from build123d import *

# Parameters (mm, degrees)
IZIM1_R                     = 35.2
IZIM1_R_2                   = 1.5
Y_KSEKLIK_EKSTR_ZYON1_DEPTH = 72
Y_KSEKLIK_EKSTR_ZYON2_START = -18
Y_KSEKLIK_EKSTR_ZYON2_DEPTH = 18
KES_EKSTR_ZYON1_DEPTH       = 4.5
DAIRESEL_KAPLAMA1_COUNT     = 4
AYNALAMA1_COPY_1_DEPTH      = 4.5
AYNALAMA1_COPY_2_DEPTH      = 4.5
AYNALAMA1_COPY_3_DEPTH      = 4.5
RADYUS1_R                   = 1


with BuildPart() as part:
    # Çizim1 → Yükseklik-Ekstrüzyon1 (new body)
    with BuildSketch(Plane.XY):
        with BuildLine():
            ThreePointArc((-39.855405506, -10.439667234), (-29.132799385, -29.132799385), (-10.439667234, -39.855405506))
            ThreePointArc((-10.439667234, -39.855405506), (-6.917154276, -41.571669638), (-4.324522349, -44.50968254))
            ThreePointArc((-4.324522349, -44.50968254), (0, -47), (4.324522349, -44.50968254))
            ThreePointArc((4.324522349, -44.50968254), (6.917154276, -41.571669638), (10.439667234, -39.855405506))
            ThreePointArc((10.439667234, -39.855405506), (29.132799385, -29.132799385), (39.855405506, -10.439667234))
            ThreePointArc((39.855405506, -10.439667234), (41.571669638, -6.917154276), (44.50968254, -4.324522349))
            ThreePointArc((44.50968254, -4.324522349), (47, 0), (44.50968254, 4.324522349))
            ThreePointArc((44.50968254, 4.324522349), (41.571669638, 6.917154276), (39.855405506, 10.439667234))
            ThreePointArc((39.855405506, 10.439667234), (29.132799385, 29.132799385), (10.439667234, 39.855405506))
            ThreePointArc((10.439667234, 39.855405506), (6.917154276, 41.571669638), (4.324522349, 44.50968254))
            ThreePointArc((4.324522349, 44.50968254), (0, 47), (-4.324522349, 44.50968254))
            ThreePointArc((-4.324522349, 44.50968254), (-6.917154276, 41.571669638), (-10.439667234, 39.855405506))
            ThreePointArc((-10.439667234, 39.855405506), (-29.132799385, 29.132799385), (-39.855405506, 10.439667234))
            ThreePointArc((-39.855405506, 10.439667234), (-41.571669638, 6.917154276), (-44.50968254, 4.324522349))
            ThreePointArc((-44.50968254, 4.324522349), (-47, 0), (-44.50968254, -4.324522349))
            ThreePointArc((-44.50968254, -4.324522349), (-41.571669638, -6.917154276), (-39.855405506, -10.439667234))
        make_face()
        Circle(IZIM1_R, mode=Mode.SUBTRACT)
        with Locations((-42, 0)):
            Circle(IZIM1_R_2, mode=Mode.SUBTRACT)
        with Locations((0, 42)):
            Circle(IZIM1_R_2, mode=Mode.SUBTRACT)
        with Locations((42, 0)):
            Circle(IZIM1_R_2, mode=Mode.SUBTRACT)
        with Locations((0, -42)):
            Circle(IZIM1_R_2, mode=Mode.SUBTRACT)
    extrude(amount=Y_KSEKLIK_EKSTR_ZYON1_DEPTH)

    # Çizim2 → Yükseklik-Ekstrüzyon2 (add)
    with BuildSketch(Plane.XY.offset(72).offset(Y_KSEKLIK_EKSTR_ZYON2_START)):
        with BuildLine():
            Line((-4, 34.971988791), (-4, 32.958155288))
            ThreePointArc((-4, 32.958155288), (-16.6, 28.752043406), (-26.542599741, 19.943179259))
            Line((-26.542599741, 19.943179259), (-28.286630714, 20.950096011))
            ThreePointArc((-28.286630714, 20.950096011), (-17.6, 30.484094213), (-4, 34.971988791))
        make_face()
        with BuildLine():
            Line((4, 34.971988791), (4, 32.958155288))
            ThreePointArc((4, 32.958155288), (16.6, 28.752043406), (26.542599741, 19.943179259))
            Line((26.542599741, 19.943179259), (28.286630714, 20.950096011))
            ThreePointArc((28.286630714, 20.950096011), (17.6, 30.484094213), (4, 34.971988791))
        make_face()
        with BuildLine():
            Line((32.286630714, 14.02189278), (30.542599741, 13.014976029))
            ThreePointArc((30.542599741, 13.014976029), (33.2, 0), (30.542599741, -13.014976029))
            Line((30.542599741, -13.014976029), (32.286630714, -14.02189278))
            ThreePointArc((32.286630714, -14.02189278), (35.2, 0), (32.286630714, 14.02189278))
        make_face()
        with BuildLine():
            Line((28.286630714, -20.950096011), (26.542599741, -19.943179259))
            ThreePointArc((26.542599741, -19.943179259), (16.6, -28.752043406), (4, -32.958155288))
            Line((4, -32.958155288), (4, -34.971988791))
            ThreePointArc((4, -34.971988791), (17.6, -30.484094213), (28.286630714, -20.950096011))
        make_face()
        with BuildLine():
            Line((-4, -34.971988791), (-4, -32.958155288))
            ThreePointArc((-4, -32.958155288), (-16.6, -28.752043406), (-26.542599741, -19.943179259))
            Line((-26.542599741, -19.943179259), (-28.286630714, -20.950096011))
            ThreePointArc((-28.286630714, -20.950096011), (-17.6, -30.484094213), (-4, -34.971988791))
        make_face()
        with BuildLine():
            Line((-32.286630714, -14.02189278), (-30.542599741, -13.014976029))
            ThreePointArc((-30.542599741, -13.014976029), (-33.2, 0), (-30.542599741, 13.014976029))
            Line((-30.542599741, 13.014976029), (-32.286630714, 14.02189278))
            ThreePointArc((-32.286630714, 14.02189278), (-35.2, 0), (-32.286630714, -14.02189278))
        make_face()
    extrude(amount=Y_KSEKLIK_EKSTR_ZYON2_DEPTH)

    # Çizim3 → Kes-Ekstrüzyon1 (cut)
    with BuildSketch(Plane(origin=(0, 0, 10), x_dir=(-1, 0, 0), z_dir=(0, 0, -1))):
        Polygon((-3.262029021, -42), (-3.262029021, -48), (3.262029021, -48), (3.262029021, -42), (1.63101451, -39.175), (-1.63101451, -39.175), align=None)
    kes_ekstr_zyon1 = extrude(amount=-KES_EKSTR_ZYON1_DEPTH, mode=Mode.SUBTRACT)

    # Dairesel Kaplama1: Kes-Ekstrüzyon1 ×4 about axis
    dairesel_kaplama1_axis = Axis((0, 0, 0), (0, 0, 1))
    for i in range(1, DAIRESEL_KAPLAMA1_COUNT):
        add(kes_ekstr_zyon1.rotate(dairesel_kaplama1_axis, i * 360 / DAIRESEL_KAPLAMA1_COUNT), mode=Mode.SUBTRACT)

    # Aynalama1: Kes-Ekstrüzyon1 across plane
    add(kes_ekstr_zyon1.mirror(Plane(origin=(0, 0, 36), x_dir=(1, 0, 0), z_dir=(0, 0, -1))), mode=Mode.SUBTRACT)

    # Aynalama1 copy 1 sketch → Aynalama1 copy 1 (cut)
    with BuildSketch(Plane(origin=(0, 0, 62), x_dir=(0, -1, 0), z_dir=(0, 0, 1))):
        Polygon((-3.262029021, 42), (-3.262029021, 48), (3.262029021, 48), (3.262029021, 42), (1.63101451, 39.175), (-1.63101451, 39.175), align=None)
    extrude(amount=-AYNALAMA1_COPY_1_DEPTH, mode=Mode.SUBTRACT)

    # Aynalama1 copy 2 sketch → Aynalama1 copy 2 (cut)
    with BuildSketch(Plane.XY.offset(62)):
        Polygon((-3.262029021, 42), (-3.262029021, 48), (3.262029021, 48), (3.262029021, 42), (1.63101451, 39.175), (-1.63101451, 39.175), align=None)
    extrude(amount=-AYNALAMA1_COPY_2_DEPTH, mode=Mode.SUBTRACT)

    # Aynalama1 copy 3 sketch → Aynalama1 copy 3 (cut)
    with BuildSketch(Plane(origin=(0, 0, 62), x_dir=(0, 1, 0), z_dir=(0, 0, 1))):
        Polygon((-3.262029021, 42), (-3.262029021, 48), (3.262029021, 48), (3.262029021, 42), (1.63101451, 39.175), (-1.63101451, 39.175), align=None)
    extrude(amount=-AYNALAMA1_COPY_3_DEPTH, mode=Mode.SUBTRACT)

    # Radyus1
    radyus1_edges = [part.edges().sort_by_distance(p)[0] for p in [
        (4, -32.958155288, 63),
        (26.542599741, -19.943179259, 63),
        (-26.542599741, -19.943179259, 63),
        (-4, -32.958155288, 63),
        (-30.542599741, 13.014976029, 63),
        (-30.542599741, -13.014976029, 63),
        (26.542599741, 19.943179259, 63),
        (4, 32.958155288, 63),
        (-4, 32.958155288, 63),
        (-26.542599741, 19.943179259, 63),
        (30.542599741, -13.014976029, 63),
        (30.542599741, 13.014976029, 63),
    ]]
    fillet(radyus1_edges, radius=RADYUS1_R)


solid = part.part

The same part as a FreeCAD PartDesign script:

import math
import FreeCAD as App
import Part
import Sketcher
from FreeCAD import Vector
Q = App.Units.Quantity


def edges_at(feature, points):
    """Names of the edges that pass closest to the given points."""
    edges = feature.Shape.Edges
    near = lambda p: min(range(len(edges)), key=lambda i: edges[i].distToShape(Part.Vertex(*p))[0])
    return sorted({f"Edge{near(p) + 1}" for p in points})

doc = App.newDocument("Part")
body = doc.addObject("PartDesign::Body", "Body")

# Sketch on XY plane
sketch1 = doc.addObject("Sketcher::SketchObject", "Sketch")
body.addObject(sketch1)
sketch1.AttachmentSupport = (doc.XY_Plane, [""])
sketch1.MapMode = "FlatFace"
sketch1.addGeometry([
    Part.ArcOfCircle(Part.Circle(Vector(0, 0, 0), Vector(0, 0, 1), 41.2), math.radians(-165), math.radians(-105)),  # 0
    Part.ArcOfCircle(Part.Circle(Vector(-13, -49.5, 0), Vector(0, 0, 1), 10), math.radians(30), math.radians(75)),  # 1
    Part.ArcOfCircle(Part.Circle(Vector(0, -42, 0), Vector(0, 0, 1), 5), math.radians(-150), math.radians(-30)),  # 2
    Part.ArcOfCircle(Part.Circle(Vector(13, -49.5, 0), Vector(0, 0, 1), 10), math.radians(105), math.radians(150)),  # 3
    Part.ArcOfCircle(Part.Circle(Vector(0, 0, 0), Vector(0, 0, 1), 41.2), math.radians(-75), math.radians(-15)),  # 4
    Part.ArcOfCircle(Part.Circle(Vector(49.5, -13, 0), Vector(0, 0, 1), 10), math.radians(120), math.radians(165)),  # 5
    Part.ArcOfCircle(Part.Circle(Vector(42, 0, 0), Vector(0, 0, 1), 5), math.radians(-60), math.radians(60)),  # 6
    Part.ArcOfCircle(Part.Circle(Vector(49.5, 13, 0), Vector(0, 0, 1), 10), math.radians(-165), math.radians(-120)),  # 7
    Part.ArcOfCircle(Part.Circle(Vector(0, 0, 0), Vector(0, 0, 1), 41.2), math.radians(15), math.radians(75)),  # 8
    Part.ArcOfCircle(Part.Circle(Vector(13, 49.5, 0), Vector(0, 0, 1), 10), math.radians(-150), math.radians(-105)),  # 9
    Part.ArcOfCircle(Part.Circle(Vector(0, 42, 0), Vector(0, 0, 1), 5), math.radians(30), math.radians(150)),  # 10
    Part.ArcOfCircle(Part.Circle(Vector(-13, 49.5, 0), Vector(0, 0, 1), 10), math.radians(-75), math.radians(-30)),  # 11
    Part.ArcOfCircle(Part.Circle(Vector(0, 0, 0), Vector(0, 0, 1), 41.2), math.radians(105), math.radians(165)),  # 12
    Part.ArcOfCircle(Part.Circle(Vector(-49.5, 13, 0), Vector(0, 0, 1), 10), math.radians(-60), math.radians(-15)),  # 13
    Part.ArcOfCircle(Part.Circle(Vector(-42, 0, 0), Vector(0, 0, 1), 5), math.radians(120), math.radians(240)),  # 14
    Part.ArcOfCircle(Part.Circle(Vector(-49.5, -13, 0), Vector(0, 0, 1), 10), math.radians(15), math.radians(60)),  # 15
    Part.Circle(Vector(0, -42, 0), Vector(0, 0, 1), 1.5),  # 16
    Part.Circle(Vector(-42, 0, 0), Vector(0, 0, 1), 1.5),  # 17
    Part.Circle(Vector(0, 0, 0), Vector(0, 0, 1), 35.2),  # 18
    Part.Circle(Vector(42, 0, 0), Vector(0, 0, 1), 1.5),  # 19
    Part.Circle(Vector(0, 42, 0), Vector(0, 0, 1), 1.5),  # 20
], False)
sketch1.addConstraint([
    Sketcher.Constraint("Tangent", 0, 2, 1, 2),
    Sketcher.Constraint("Tangent", 1, 1, 2, 1),
    Sketcher.Constraint("Tangent", 2, 2, 3, 2),
    Sketcher.Constraint("Tangent", 3, 1, 4, 1),
    Sketcher.Constraint("Tangent", 4, 2, 5, 2),
    Sketcher.Constraint("Tangent", 5, 1, 6, 1),
    Sketcher.Constraint("Tangent", 6, 2, 7, 2),
    Sketcher.Constraint("Tangent", 7, 1, 8, 1),
    Sketcher.Constraint("Tangent", 8, 2, 9, 2),
    Sketcher.Constraint("Tangent", 9, 1, 10, 1),
    Sketcher.Constraint("Tangent", 10, 2, 11, 2),
    Sketcher.Constraint("Tangent", 11, 1, 12, 1),
    Sketcher.Constraint("Tangent", 12, 2, 13, 2),
    Sketcher.Constraint("Tangent", 13, 1, 14, 1),
    Sketcher.Constraint("Tangent", 14, 2, 15, 2),
    Sketcher.Constraint("Tangent", 15, 1, 0, 1),
    Sketcher.Constraint("Coincident", 0, 3, -1, 1),
    Sketcher.Constraint("Coincident", 4, 3, -1, 1),
    Sketcher.Constraint("Coincident", 8, 3, -1, 1),
    Sketcher.Constraint("Coincident", 12, 3, -1, 1),
    Sketcher.Constraint("Coincident", 18, 3, -1, 1),
    Sketcher.Constraint("Coincident", 16, 3, 2, 3),
    Sketcher.Constraint("Coincident", 17, 3, 14, 3),
    Sketcher.Constraint("Coincident", 19, 3, 6, 3),
    Sketcher.Constraint("Coincident", 20, 3, 10, 3),
    Sketcher.Constraint("Equal", 1, 3),
    Sketcher.Constraint("Equal", 0, 4),
    Sketcher.Constraint("Equal", 3, 5),
    Sketcher.Constraint("Equal", 2, 6),
    Sketcher.Constraint("Equal", 5, 7),
    Sketcher.Constraint("Equal", 4, 8),
    Sketcher.Constraint("Equal", 7, 9),
    Sketcher.Constraint("Equal", 6, 10),
    Sketcher.Constraint("Equal", 9, 11),
    Sketcher.Constraint("Equal", 8, 12),
    Sketcher.Constraint("Equal", 11, 13),
    Sketcher.Constraint("Equal", 10, 14),
    Sketcher.Constraint("Equal", 13, 15),
    Sketcher.Constraint("Equal", 16, 17),
    Sketcher.Constraint("Equal", 17, 19),
    Sketcher.Constraint("Equal", 19, 20),
    Sketcher.Constraint("Symmetric", 2, 3, 10, 3, -1, 1),
    Sketcher.Constraint("Symmetric", 6, 3, 14, 3, -1, 1),
    Sketcher.Constraint("PointOnObject", 2, 3, -2),
    Sketcher.Constraint("PointOnObject", 6, 3, -1),
    Sketcher.Constraint("Diameter", 16, 3.0),
    Sketcher.Constraint("Radius", 1, 10.0),
    Sketcher.Constraint("Radius", 2, 5.0),
    Sketcher.Constraint("Diameter", 18, 70.4),
    Sketcher.Constraint("Radius", 0, 41.2),
    Sketcher.Constraint("DistanceY", 2, 3, -1, 1, 42.0),
    Sketcher.Constraint("DistanceX", -1, 1, 6, 3, 42.0),
])
pad1 = doc.addObject("PartDesign::Pad", "Pad")
body.addObject(pad1)
pad1.Profile = sketch1
pad1.Length = 72

# Sketch on XY plane
sketch2 = doc.addObject("Sketcher::SketchObject", "Sketch001")
body.addObject(sketch2)
sketch2.AttachmentSupport = (doc.XY_Plane, [""])
sketch2.MapMode = "FlatFace"
sketch2.AttachmentOffset = App.Placement(Vector(0, 0, 54), App.Rotation())
sketch2.addGeometry([
    Part.LineSegment(Vector(-4, 32.958155, 0), Vector(-4, 34.971989, 0)),  # 0
    Part.ArcOfCircle(Part.Circle(Vector(0, 0, 0), Vector(0, 0, 1), 35.2), math.radians(96.524979), math.radians(143.475021)),  # 1
    Part.LineSegment(Vector(-28.286631, 20.950096, 0), Vector(-26.5426, 19.943179, 0)),  # 2
    Part.ArcOfCircle(Part.Circle(Vector(0, 0, 0), Vector(0, 0, 1), 33.2), math.radians(96.919917), math.radians(143.080083)),  # 3
    Part.LineSegment(Vector(4, 34.971989, 0), Vector(4, 32.958155, 0)),  # 4
    Part.ArcOfCircle(Part.Circle(Vector(0, 0, 0), Vector(0, 0, 1), 33.2), math.radians(36.919917), math.radians(83.080083)),  # 5
    Part.LineSegment(Vector(26.5426, 19.943179, 0), Vector(28.286631, 20.950096, 0)),  # 6
    Part.ArcOfCircle(Part.Circle(Vector(0, 0, 0), Vector(0, 0, 1), 35.2), math.radians(36.524979), math.radians(83.475021)),  # 7
    Part.LineSegment(Vector(32.286631, 14.021893, 0), Vector(30.5426, 13.014976, 0)),  # 8
    Part.ArcOfCircle(Part.Circle(Vector(0, 0, 0), Vector(0, 0, 1), 33.2), math.radians(-23.080083), math.radians(23.080083)),  # 9
    Part.LineSegment(Vector(30.5426, -13.014976, 0), Vector(32.286631, -14.021893, 0)),  # 10
    Part.ArcOfCircle(Part.Circle(Vector(0, 0, 0), Vector(0, 0, 1), 35.2), math.radians(-23.475021), math.radians(23.475021)),  # 11
    Part.LineSegment(Vector(28.286631, -20.950096, 0), Vector(26.5426, -19.943179, 0)),  # 12
    Part.ArcOfCircle(Part.Circle(Vector(0, 0, 0), Vector(0, 0, 1), 33.2), math.radians(-83.080083), math.radians(-36.919917)),  # 13
    Part.LineSegment(Vector(4, -32.958155, 0), Vector(4, -34.971989, 0)),  # 14
    Part.ArcOfCircle(Part.Circle(Vector(0, 0, 0), Vector(0, 0, 1), 35.2), math.radians(-83.475021), math.radians(-36.524979)),  # 15
    Part.LineSegment(Vector(-4, -34.971989, 0), Vector(-4, -32.958155, 0)),  # 16
    Part.ArcOfCircle(Part.Circle(Vector(0, 0, 0), Vector(0, 0, 1), 33.2), math.radians(-143.080083), math.radians(-96.919917)),  # 17
    Part.LineSegment(Vector(-26.5426, -19.943179, 0), Vector(-28.286631, -20.950096, 0)),  # 18
    Part.ArcOfCircle(Part.Circle(Vector(0, 0, 0), Vector(0, 0, 1), 35.2), math.radians(-143.475021), math.radians(-96.524979)),  # 19
    Part.LineSegment(Vector(-32.286631, -14.021893, 0), Vector(-30.5426, -13.014976, 0)),  # 20
    Part.ArcOfCircle(Part.Circle(Vector(0, 0, 0), Vector(0, 0, 1), 33.2), math.radians(156.919917), math.radians(203.080083)),  # 21
    Part.LineSegment(Vector(-30.5426, 13.014976, 0), Vector(-32.286631, 14.021893, 0)),  # 22
    Part.ArcOfCircle(Part.Circle(Vector(0, 0, 0), Vector(0, 0, 1), 35.2), math.radians(156.524979), math.radians(203.475021)),  # 23
], False)
sketch2.addConstraint([
    Sketcher.Constraint("Coincident", 0, 2, 1, 1),
    Sketcher.Constraint("Coincident", 1, 2, 2, 1),
    Sketcher.Constraint("Coincident", 2, 2, 3, 2),
    Sketcher.Constraint("Coincident", 3, 1, 0, 1),
    Sketcher.Constraint("Coincident", 4, 2, 5, 2),
    Sketcher.Constraint("Coincident", 5, 1, 6, 1),
    Sketcher.Constraint("Coincident", 6, 2, 7, 1),
    Sketcher.Constraint("Coincident", 7, 2, 4, 1),
    Sketcher.Constraint("Coincident", 8, 2, 9, 2),
    Sketcher.Constraint("Coincident", 9, 1, 10, 1),
    Sketcher.Constraint("Coincident", 10, 2, 11, 1),
    Sketcher.Constraint("Coincident", 11, 2, 8, 1),
    Sketcher.Constraint("Coincident", 12, 2, 13, 2),
    Sketcher.Constraint("Coincident", 13, 1, 14, 1),
    Sketcher.Constraint("Coincident", 14, 2, 15, 1),
    Sketcher.Constraint("Coincident", 15, 2, 12, 1),
    Sketcher.Constraint("Coincident", 16, 2, 17, 2),
    Sketcher.Constraint("Coincident", 17, 1, 18, 1),
    Sketcher.Constraint("Coincident", 18, 2, 19, 1),
    Sketcher.Constraint("Coincident", 19, 2, 16, 1),
    Sketcher.Constraint("Coincident", 20, 2, 21, 2),
    Sketcher.Constraint("Coincident", 21, 1, 22, 1),
    Sketcher.Constraint("Coincident", 22, 2, 23, 1),
    Sketcher.Constraint("Coincident", 23, 2, 20, 1),
    Sketcher.Constraint("Vertical", 0),
    Sketcher.Constraint("Vertical", 4),
    Sketcher.Constraint("Vertical", 14),
    Sketcher.Constraint("Vertical", 16),
    Sketcher.Constraint("Coincident", 1, 3, -1, 1),
    Sketcher.Constraint("Coincident", 3, 3, -1, 1),
    Sketcher.Constraint("Coincident", 5, 3, -1, 1),
    Sketcher.Constraint("Coincident", 7, 3, -1, 1),
    Sketcher.Constraint("Coincident", 9, 3, -1, 1),
    Sketcher.Constraint("Coincident", 11, 3, -1, 1),
    Sketcher.Constraint("Coincident", 13, 3, -1, 1),
    Sketcher.Constraint("Coincident", 15, 3, -1, 1),
    Sketcher.Constraint("Coincident", 17, 3, -1, 1),
    Sketcher.Constraint("Coincident", 19, 3, -1, 1),
    Sketcher.Constraint("Coincident", 21, 3, -1, 1),
    Sketcher.Constraint("Coincident", 23, 3, -1, 1),
    Sketcher.Constraint("Equal", 3, 5),
    Sketcher.Constraint("Equal", 1, 7),
    Sketcher.Constraint("Equal", 5, 9),
    Sketcher.Constraint("Equal", 7, 11),
    Sketcher.Constraint("Equal", 9, 13),
    Sketcher.Constraint("Equal", 11, 15),
    Sketcher.Constraint("Equal", 13, 17),
    Sketcher.Constraint("Equal", 15, 19),
    Sketcher.Constraint("Equal", 17, 21),
    Sketcher.Constraint("Equal", 19, 23),
    Sketcher.Constraint("Parallel", 6, 8),
    Sketcher.Constraint("Parallel", 2, 10),
    Sketcher.Constraint("Parallel", 10, 12),
    Sketcher.Constraint("Parallel", 8, 18),
    Sketcher.Constraint("Parallel", 18, 20),
    Sketcher.Constraint("Parallel", 12, 22),
    Sketcher.Constraint("Horizontal", 3, 1, 4, 2),
    Sketcher.Constraint("Horizontal", 2, 2, 5, 1),
    Sketcher.Constraint("Horizontal", 1, 2, 6, 2),
    Sketcher.Constraint("Horizontal", 13, 1, 16, 2),
    Sketcher.Constraint("Horizontal", 12, 2, 17, 1),
    Sketcher.Constraint("Horizontal", 9, 1, 20, 2),
    Sketcher.Constraint("Horizontal", 8, 2, 21, 1),
    Sketcher.Constraint("Vertical", 8, 2, 9, 1),
    Sketcher.Constraint("Vertical", 5, 1, 12, 2),
    Sketcher.Constraint("Vertical", 7, 2, 13, 1),
    Sketcher.Constraint("Equal", 6, 8),
    Sketcher.Constraint("Radius", 1, 35.2),
    Sketcher.Constraint("Radius", 3, 33.2),
    Sketcher.Constraint("Angle", 2, Q("-30 deg")),
    Sketcher.Constraint("DistanceX", 0, 2, -1, 1, 4.0),
    Sketcher.Constraint("DistanceX", 5, 1, 8, 2, 4.0),
])
pad2 = doc.addObject("PartDesign::Pad", "Pad001")
body.addObject(pad2)
pad2.Profile = sketch2
pad2.Length = 18

# Sketch on XY plane
sketch3 = doc.addObject("Sketcher::SketchObject", "Sketch002")
body.addObject(sketch3)
sketch3.AttachmentSupport = (doc.XY_Plane, [""])
sketch3.MapMode = "FlatFace"
sketch3.AttachmentOffset = App.Placement(Vector(0, 0, 10), App.Rotation())
sketch3.addGeometry([
    Part.LineSegment(Vector(3.3, -42, 0), Vector(3.3, -48, 0)),  # 0
    Part.LineSegment(Vector(3.3, -48, 0), Vector(-3.3, -48, 0)),  # 1
    Part.LineSegment(Vector(-3.3, -48, 0), Vector(-3.3, -42, 0)),  # 2
    Part.LineSegment(Vector(-3.3, -42, 0), Vector(-1.6, -39.2, 0)),  # 3
    Part.LineSegment(Vector(-1.6, -39.2, 0), Vector(1.6, -39.2, 0)),  # 4
    Part.LineSegment(Vector(1.6, -39.2, 0), Vector(3.3, -42, 0)),  # 5
], False)
sketch3.addConstraint([
    Sketcher.Constraint("Coincident", 0, 2, 1, 1),
    Sketcher.Constraint("Coincident", 1, 2, 2, 1),
    Sketcher.Constraint("Coincident", 2, 2, 3, 1),
    Sketcher.Constraint("Coincident", 3, 2, 4, 1),
    Sketcher.Constraint("Coincident", 4, 2, 5, 1),
    Sketcher.Constraint("Coincident", 5, 2, 0, 1),
    Sketcher.Constraint("Vertical", 0),
    Sketcher.Constraint("Horizontal", 1),
    Sketcher.Constraint("Vertical", 2),
    Sketcher.Constraint("Horizontal", 4),
    Sketcher.Constraint("Symmetric", 2, 2, 5, 2, -2),
    Sketcher.Constraint("Equal", 3, 5),
    Sketcher.Constraint("DistanceY", 0, 2, 0, 1, 6.0),
    Sketcher.Constraint("Angle", 3, Q("60 deg")),
    Sketcher.Constraint("DistanceY", 0, 2, -1, 1, 48.0),
    Sketcher.Constraint("DistanceY", 3, 2, -1, 1, 39.175),
    Sketcher.Constraint("DistanceX", 1, 2, 1, 1, 6.524058),
])
pocket1 = doc.addObject("PartDesign::Pocket", "Pocket")
body.addObject(pocket1)
pocket1.Profile = sketch3
pocket1.Length = 4.5
pocket1.Reversed = True
doc.recompute()

polarpattern = doc.addObject("PartDesign::PolarPattern", "PolarPattern")
body.addObject(polarpattern)
polarpattern.Originals = [pocket1]
polarpattern.Axis = (doc.Z_Axis, [""])
polarpattern.Angle = 360
polarpattern.Occurrences = 4
body.Tip = polarpattern
doc.recompute()

datumplane = doc.addObject("PartDesign::Plane", "DatumPlane")
body.addObject(datumplane)
datumplane.AttachmentSupport = (doc.XY_Plane, [""])
datumplane.MapMode = "FlatFace"
datumplane.AttachmentOffset = App.Placement(Vector(0, 0, 36), App.Rotation())
mirrored = doc.addObject("PartDesign::Mirrored", "Mirrored")
body.addObject(mirrored)
mirrored.Originals = [pocket1]
mirrored.MirrorPlane = (datumplane, [""])
body.Tip = mirrored

# Sketch on XY plane
sketch4 = doc.addObject("Sketcher::SketchObject", "Sketch003")
body.addObject(sketch4)
sketch4.AttachmentSupport = (doc.XY_Plane, [""])
sketch4.MapMode = "FlatFace"
sketch4.AttachmentOffset = App.Placement(Vector(0, 0, 62), App.Rotation())
sketch4.addGeometry([
    Part.LineSegment(Vector(48, 3.3, 0), Vector(42, 3.3, 0)),  # 0
    Part.LineSegment(Vector(42, 3.3, 0), Vector(39.2, 1.6, 0)),  # 1
    Part.LineSegment(Vector(39.2, 1.6, 0), Vector(39.2, -1.6, 0)),  # 2
    Part.LineSegment(Vector(39.2, -1.6, 0), Vector(42, -3.3, 0)),  # 3
    Part.LineSegment(Vector(42, -3.3, 0), Vector(48, -3.3, 0)),  # 4
    Part.LineSegment(Vector(48, -3.3, 0), Vector(48, 3.3, 0)),  # 5
], False)
sketch4.addConstraint([
    Sketcher.Constraint("Coincident", 0, 2, 1, 1),
    Sketcher.Constraint("Coincident", 1, 2, 2, 1),
    Sketcher.Constraint("Coincident", 2, 2, 3, 1),
    Sketcher.Constraint("Coincident", 3, 2, 4, 1),
    Sketcher.Constraint("Coincident", 4, 2, 5, 1),
    Sketcher.Constraint("Coincident", 5, 2, 0, 1),
    Sketcher.Constraint("Horizontal", 0),
    Sketcher.Constraint("Vertical", 2),
    Sketcher.Constraint("Horizontal", 4),
    Sketcher.Constraint("Vertical", 5),
    Sketcher.Constraint("Symmetric", 0, 2, 3, 2, -1),
    Sketcher.Constraint("Equal", 1, 3),
    Sketcher.Constraint("DistanceX", 0, 2, 0, 1, 6.0),
    Sketcher.Constraint("Angle", 1, Q("-150 deg")),
    Sketcher.Constraint("DistanceX", -1, 1, 0, 2, 42.0),
    Sketcher.Constraint("DistanceX", -1, 1, 1, 2, 39.175),
    Sketcher.Constraint("DistanceY", 2, 2, 2, 1, 3.262029),
])
pocket2 = doc.addObject("PartDesign::Pocket", "Pocket001")
body.addObject(pocket2)
pocket2.Profile = sketch4
pocket2.Length = 4.5

# Sketch on XY plane
sketch5 = doc.addObject("Sketcher::SketchObject", "Sketch004")
body.addObject(sketch5)
sketch5.AttachmentSupport = (doc.XY_Plane, [""])
sketch5.MapMode = "FlatFace"
sketch5.AttachmentOffset = App.Placement(Vector(0, 0, 62), App.Rotation())
sketch5.addGeometry([
    Part.LineSegment(Vector(-3.3, 48, 0), Vector(-3.3, 42, 0)),  # 0
    Part.LineSegment(Vector(-3.3, 42, 0), Vector(-1.6, 39.2, 0)),  # 1
    Part.LineSegment(Vector(-1.6, 39.2, 0), Vector(1.6, 39.2, 0)),  # 2
    Part.LineSegment(Vector(1.6, 39.2, 0), Vector(3.3, 42, 0)),  # 3
    Part.LineSegment(Vector(3.3, 42, 0), Vector(3.3, 48, 0)),  # 4
    Part.LineSegment(Vector(3.3, 48, 0), Vector(-3.3, 48, 0)),  # 5
], False)
sketch5.addConstraint([
    Sketcher.Constraint("Coincident", 0, 2, 1, 1),
    Sketcher.Constraint("Coincident", 1, 2, 2, 1),
    Sketcher.Constraint("Coincident", 2, 2, 3, 1),
    Sketcher.Constraint("Coincident", 3, 2, 4, 1),
    Sketcher.Constraint("Coincident", 4, 2, 5, 1),
    Sketcher.Constraint("Coincident", 5, 2, 0, 1),
    Sketcher.Constraint("Vertical", 0),
    Sketcher.Constraint("Horizontal", 2),
    Sketcher.Constraint("Vertical", 4),
    Sketcher.Constraint("Horizontal", 5),
    Sketcher.Constraint("Symmetric", 0, 2, 3, 2, -2),
    Sketcher.Constraint("Equal", 1, 3),
    Sketcher.Constraint("DistanceY", 0, 2, 0, 1, 6.0),
    Sketcher.Constraint("Angle", 1, Q("-60 deg")),
    Sketcher.Constraint("DistanceY", -1, 1, 0, 2, 42.0),
    Sketcher.Constraint("DistanceY", -1, 1, 1, 2, 39.175),
    Sketcher.Constraint("DistanceX", 2, 1, 2, 2, 3.262029),
])
pocket3 = doc.addObject("PartDesign::Pocket", "Pocket002")
body.addObject(pocket3)
pocket3.Profile = sketch5
pocket3.Length = 4.5

# Sketch on XY plane
sketch6 = doc.addObject("Sketcher::SketchObject", "Sketch005")
body.addObject(sketch6)
sketch6.AttachmentSupport = (doc.XY_Plane, [""])
sketch6.MapMode = "FlatFace"
sketch6.AttachmentOffset = App.Placement(Vector(0, 0, 62), App.Rotation())
sketch6.addGeometry([
    Part.LineSegment(Vector(-48, -3.3, 0), Vector(-42, -3.3, 0)),  # 0
    Part.LineSegment(Vector(-42, -3.3, 0), Vector(-39.2, -1.6, 0)),  # 1
    Part.LineSegment(Vector(-39.2, -1.6, 0), Vector(-39.2, 1.6, 0)),  # 2
    Part.LineSegment(Vector(-39.2, 1.6, 0), Vector(-42, 3.3, 0)),  # 3
    Part.LineSegment(Vector(-42, 3.3, 0), Vector(-48, 3.3, 0)),  # 4
    Part.LineSegment(Vector(-48, 3.3, 0), Vector(-48, -3.3, 0)),  # 5
], False)
sketch6.addConstraint([
    Sketcher.Constraint("Coincident", 0, 2, 1, 1),
    Sketcher.Constraint("Coincident", 1, 2, 2, 1),
    Sketcher.Constraint("Coincident", 2, 2, 3, 1),
    Sketcher.Constraint("Coincident", 3, 2, 4, 1),
    Sketcher.Constraint("Coincident", 4, 2, 5, 1),
    Sketcher.Constraint("Coincident", 5, 2, 0, 1),
    Sketcher.Constraint("Horizontal", 0),
    Sketcher.Constraint("Vertical", 2),
    Sketcher.Constraint("Horizontal", 4),
    Sketcher.Constraint("Vertical", 5),
    Sketcher.Constraint("Symmetric", 0, 2, 3, 2, -1),
    Sketcher.Constraint("Equal", 1, 3),
    Sketcher.Constraint("DistanceX", 0, 1, 0, 2, 6.0),
    Sketcher.Constraint("Angle", 1, Q("30 deg")),
    Sketcher.Constraint("DistanceX", 0, 2, -1, 1, 42.0),
    Sketcher.Constraint("DistanceX", 1, 2, -1, 1, 39.175),
    Sketcher.Constraint("DistanceY", 2, 1, 2, 2, 3.262029),
])
pocket4 = doc.addObject("PartDesign::Pocket", "Pocket003")
body.addObject(pocket4)
pocket4.Profile = sketch6
pocket4.Length = 4.5
doc.recompute()

fillet = doc.addObject("PartDesign::Fillet", "Fillet")
body.addObject(fillet)
fillet.Base = (pocket4, edges_at(pocket4, [
    (4, -32.958, 63),
    (26.543, -19.943, 63),
    (-26.543, -19.943, 63),
    (-4, -32.958, 63),
    (-30.543, 13.015, 63),
    (-30.543, -13.015, 63),
    (26.543, 19.943, 63),
    (4, 32.958, 63),
    (-4, 32.958, 63),
    (-26.543, 19.943, 63),
    (30.543, -13.015, 63),
    (30.543, 13.015, 63),
]))
fillet.Radius = 1

doc.recompute()
